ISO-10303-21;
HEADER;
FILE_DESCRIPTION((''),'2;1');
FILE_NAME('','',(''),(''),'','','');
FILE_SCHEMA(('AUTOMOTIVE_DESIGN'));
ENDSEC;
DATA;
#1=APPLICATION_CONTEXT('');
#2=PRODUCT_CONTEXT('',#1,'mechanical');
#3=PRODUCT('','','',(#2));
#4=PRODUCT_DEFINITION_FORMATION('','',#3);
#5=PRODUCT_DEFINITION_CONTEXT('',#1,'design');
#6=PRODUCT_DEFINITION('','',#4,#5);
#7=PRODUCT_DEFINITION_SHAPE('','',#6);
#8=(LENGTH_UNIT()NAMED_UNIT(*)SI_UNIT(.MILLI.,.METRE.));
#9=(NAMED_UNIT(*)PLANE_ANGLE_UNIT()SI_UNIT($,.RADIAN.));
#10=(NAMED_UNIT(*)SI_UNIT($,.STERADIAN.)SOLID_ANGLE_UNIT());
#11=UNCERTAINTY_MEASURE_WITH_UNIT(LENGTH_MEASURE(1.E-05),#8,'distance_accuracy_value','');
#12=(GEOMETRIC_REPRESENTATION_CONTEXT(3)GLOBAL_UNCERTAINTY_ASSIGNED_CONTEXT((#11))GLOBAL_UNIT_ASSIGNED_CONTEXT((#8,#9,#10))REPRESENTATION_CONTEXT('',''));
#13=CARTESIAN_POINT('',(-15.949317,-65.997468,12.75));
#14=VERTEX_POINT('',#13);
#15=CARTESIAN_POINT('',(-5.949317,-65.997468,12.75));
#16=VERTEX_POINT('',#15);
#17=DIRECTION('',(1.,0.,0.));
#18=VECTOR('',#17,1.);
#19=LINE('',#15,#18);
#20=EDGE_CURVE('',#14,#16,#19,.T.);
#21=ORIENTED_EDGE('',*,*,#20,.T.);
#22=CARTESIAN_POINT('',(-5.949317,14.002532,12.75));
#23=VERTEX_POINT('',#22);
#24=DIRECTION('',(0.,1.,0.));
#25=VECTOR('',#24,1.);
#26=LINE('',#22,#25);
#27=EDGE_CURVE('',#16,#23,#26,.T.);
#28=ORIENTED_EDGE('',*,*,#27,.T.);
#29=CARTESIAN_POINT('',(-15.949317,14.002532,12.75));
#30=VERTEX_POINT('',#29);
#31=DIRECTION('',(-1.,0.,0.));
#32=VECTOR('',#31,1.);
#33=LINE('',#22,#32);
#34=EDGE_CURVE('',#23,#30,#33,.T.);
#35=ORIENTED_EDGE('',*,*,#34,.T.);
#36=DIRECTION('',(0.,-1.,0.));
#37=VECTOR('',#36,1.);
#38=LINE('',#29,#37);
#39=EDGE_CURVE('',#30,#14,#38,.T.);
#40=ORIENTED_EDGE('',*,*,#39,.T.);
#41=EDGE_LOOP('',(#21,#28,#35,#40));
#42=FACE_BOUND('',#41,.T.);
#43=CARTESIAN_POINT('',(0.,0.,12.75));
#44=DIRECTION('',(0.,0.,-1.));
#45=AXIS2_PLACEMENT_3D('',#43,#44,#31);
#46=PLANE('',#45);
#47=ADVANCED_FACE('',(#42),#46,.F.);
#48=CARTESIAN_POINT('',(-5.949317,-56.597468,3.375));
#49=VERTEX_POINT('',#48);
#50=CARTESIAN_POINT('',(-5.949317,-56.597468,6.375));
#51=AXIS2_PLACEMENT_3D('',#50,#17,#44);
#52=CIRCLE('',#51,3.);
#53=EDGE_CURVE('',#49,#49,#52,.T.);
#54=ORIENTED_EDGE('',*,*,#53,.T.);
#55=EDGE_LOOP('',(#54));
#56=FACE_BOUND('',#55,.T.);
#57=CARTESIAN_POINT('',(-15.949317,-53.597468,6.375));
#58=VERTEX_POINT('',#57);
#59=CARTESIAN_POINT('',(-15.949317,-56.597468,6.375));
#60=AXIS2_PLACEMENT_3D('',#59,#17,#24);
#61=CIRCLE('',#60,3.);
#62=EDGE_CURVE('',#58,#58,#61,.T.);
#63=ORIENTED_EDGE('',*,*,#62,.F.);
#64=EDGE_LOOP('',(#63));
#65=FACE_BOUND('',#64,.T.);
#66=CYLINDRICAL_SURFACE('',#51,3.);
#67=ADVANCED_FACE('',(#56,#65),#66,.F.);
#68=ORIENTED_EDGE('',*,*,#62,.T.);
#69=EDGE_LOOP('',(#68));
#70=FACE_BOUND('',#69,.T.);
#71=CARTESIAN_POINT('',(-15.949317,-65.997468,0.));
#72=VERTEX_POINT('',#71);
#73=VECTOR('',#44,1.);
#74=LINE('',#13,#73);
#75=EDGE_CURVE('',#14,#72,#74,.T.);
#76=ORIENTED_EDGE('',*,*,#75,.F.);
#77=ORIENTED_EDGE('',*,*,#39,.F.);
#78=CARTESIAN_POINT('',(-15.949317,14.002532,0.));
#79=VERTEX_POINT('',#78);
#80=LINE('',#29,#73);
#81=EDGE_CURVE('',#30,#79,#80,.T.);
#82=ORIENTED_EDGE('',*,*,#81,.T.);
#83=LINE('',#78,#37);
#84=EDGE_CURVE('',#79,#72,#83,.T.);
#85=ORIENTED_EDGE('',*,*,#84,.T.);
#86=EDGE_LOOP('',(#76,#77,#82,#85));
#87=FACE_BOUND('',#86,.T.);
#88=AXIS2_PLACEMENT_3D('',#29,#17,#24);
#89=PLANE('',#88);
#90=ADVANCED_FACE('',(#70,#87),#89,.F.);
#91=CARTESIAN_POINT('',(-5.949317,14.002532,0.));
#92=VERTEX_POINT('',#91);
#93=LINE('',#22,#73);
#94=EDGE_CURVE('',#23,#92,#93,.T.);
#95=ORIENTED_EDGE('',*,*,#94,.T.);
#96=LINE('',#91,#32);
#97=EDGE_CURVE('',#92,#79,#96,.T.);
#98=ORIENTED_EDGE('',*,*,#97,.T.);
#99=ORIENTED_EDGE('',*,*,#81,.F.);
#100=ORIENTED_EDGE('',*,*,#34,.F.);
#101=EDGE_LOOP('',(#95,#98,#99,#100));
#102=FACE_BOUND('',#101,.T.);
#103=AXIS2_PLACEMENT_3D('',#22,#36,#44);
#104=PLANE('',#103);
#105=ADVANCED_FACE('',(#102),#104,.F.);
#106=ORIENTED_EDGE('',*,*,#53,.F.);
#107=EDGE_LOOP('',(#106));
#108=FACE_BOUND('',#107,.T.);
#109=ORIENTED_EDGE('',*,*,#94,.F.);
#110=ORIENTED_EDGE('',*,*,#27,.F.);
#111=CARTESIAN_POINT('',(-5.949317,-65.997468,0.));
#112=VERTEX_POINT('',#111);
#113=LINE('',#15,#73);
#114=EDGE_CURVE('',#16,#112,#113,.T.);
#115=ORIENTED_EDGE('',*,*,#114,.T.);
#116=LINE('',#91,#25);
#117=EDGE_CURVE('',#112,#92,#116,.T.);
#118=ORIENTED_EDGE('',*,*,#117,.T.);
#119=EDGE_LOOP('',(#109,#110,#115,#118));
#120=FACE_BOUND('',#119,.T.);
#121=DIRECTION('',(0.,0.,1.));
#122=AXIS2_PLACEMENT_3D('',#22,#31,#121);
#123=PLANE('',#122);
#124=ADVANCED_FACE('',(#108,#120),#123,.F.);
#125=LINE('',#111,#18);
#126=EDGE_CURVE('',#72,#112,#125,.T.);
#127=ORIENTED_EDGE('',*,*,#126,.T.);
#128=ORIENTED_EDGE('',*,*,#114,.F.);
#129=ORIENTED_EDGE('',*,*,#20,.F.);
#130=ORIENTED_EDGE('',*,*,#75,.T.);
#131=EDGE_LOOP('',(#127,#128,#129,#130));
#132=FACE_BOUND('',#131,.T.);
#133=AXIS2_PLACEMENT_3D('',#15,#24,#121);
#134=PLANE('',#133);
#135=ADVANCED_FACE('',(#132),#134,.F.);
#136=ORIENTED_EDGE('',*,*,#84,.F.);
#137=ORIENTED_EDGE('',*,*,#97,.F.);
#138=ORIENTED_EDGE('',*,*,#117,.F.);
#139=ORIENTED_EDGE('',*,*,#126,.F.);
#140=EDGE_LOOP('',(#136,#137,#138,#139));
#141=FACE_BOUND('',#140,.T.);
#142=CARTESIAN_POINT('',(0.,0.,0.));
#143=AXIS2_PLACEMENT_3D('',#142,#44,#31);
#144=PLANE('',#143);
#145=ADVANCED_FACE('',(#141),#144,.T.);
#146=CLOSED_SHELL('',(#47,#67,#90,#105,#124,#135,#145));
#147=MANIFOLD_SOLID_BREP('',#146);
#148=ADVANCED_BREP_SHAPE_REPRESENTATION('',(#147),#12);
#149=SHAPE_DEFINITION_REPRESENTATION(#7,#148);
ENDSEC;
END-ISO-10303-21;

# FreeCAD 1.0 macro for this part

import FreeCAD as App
import Part
import Sketcher
Q = App.Units.Quantity


def add_polygon(sketch, points):
    """Adds a closed chain of lines whose ends are joined by coincident constraints."""
    first, n = sketch.GeometryCount, len(points)
    for a, b in zip(points, points[1:] + points[:1]):
        sketch.addGeometry(Part.LineSegment(App.Vector(*a, 0), App.Vector(*b, 0)), False)
    for i in range(n):
        sketch.addConstraint(Sketcher.Constraint("Coincident", first + i, 2, first + (i + 1) % n, 1))

doc = App.newDocument("Part")
body = doc.addObject("PartDesign::Body", "Body")

# Sketch on XY plane
sketch1 = body.newObject("Sketcher::SketchObject", "Sketch")
sketch1.AttachmentSupport = (doc.getObject("XY_Plane"), [""])
sketch1.MapMode = "FlatFace"
add_polygon(sketch1, [(-15.949317, 14.002532), (-15.949317, -65.997468), (-5.949317, -65.997468), (-5.949317, 14.002532)])  # lines 0-3
sketch1.addConstraint([
    Sketcher.Constraint("Vertical", 0),
    Sketcher.Constraint("Horizontal", 1),
    Sketcher.Constraint("Vertical", 2),
    Sketcher.Constraint("Horizontal", 3),
    Sketcher.Constraint("DistanceX", 1, 1, 1, 2, Q("10 mm")),
    Sketcher.Constraint("DistanceY", 0, 2, 0, 1, Q("80 mm")),
    Sketcher.Constraint("DistanceX", 0, 2, -1, 1, Q("15.949317 mm")),
    Sketcher.Constraint("DistanceY", 0, 2, -1, 1, Q("65.997468 mm")),
])
pad1 = body.newObject("PartDesign::Pad", "Pad")
pad1.Profile = sketch1
pad1.Length = 12.75

# Sketch on YZ plane
sketch2 = body.newObject("Sketcher::SketchObject", "Sketch001")
sketch2.AttachmentSupport = (doc.getObject("YZ_Plane"), [""])
sketch2.MapMode = "FlatFace"
sketch2.AttachmentOffset = App.Placement(App.Vector(0, 0, -5.949317), App.Rotation())
sketch2.addGeometry(Part.Circle(App.Vector(-56.597468, 6.375, 0), App.Vector(0, 0, 1), 3), False)
sketch2.addConstraint([
    Sketcher.Constraint("Diameter", 0, Q("6 mm")),
    Sketcher.Constraint("DistanceY", -1, 1, 0, 3, Q("6.375 mm")),
    Sketcher.Constraint("DistanceX", 0, 3, -1, 1, Q("56.597468 mm")),
])
doc.recompute()
hole = body.newObject("PartDesign::Hole", "Hole")
hole.Profile = sketch2
hole.ThreadType = "None"
hole.Diameter = 6
hole.DepthType = "ThroughAll"

doc.recompute()
